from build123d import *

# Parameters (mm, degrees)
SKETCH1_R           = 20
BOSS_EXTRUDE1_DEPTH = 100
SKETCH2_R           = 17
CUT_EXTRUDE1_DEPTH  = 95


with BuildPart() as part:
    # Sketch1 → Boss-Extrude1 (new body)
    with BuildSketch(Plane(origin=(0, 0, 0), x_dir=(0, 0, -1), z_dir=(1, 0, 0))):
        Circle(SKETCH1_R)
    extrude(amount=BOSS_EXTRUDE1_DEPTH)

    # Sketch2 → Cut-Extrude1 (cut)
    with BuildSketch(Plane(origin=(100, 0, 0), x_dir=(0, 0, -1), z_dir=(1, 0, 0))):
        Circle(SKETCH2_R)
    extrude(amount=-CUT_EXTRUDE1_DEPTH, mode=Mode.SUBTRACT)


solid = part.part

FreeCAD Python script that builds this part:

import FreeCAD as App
import Part
import Sketcher
from FreeCAD import Vector

doc = App.newDocument("Part")
body = doc.addObject("PartDesign::Body", "Body")

# Sketch on YZ plane
sketch1 = body.newObject("Sketcher::SketchObject", "Sketch")
sketch1.AttachmentSupport = (doc.getObject("YZ_Plane"), [""])
sketch1.MapMode = "FlatFace"
sketch1.addGeometry(Part.Circle(Vector(0, 0, 0), Vector(0, 0, 1), 20), False)
sketch1.addConstraint(Sketcher.Constraint("Coincident", 0, 3, -1, 1))
sketch1.addConstraint(Sketcher.Constraint("Diameter", 0, 40.0))
pad1 = body.newObject("PartDesign::Pad", "Pad")
pad1.Profile = sketch1
pad1.Length = 100

# Sketch on YZ plane
sketch2 = body.newObject("Sketcher::SketchObject", "Sketch001")
sketch2.AttachmentSupport = (doc.getObject("YZ_Plane"), [""])
sketch2.MapMode = "FlatFace"
sketch2.AttachmentOffset = App.Placement(Vector(0, 0, 100), App.Rotation())
sketch2.addGeometry(Part.Circle(Vector(0, 0, 0), Vector(0, 0, 1), 17), False)
sketch2.addConstraint(Sketcher.Constraint("Coincident", 0, 3, -1, 1))
sketch2.addConstraint(Sketcher.Constraint("Diameter", 0, 34.0))
pocket1 = body.newObject("PartDesign::Pocket", "Pocket")
pocket1.Profile = sketch2
pocket1.Length = 95

doc.recompute()
